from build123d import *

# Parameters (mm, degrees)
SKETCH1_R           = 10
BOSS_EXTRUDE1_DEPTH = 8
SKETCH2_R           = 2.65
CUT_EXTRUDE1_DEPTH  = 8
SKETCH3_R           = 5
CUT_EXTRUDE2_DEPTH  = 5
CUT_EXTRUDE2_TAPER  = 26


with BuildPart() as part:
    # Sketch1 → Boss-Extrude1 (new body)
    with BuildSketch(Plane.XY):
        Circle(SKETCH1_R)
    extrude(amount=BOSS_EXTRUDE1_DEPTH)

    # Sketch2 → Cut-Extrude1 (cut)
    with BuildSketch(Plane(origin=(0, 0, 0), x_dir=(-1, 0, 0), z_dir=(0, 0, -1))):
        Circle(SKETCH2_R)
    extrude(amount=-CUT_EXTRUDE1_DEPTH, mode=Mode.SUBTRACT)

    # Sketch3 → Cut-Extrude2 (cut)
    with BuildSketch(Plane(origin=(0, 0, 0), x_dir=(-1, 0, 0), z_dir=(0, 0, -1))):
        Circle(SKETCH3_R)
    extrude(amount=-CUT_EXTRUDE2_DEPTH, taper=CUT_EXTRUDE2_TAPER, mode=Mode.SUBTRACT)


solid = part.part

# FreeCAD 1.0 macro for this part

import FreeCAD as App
import Part
import Sketcher
from FreeCAD import Vector
Q = App.Units.Quantity

doc = App.newDocument("Part")
body = doc.addObject("PartDesign::Body", "Body")

# Sketch on XY plane
sketch1 = doc.addObject("Sketcher::SketchObject", "Sketch")
body.addObject(sketch1)
sketch1.AttachmentSupport = (doc.XY_Plane, [""])
sketch1.MapMode = "FlatFace"
sketch1.addGeometry(Part.Circle(Vector(0, 0, 0), Vector(0, 0, 1), 10), False)
sketch1.addConstraint([
    Sketcher.Constraint("Coincident", 0, 3, -1, 1),
    Sketcher.Constraint("Diameter", 0, Q("20 mm")),
])
pad1 = doc.addObject("PartDesign::Pad", "Pad")
body.addObject(pad1)
pad1.Profile = sketch1
pad1.Length = 8

# Sketch on XY plane
sketch2 = doc.addObject("Sketcher::SketchObject", "Sketch001")
body.addObject(sketch2)
sketch2.AttachmentSupport = (doc.XY_Plane, [""])
sketch2.MapMode = "FlatFace"
sketch2.addGeometry(Part.Circle(Vector(0, 0, 0), Vector(0, 0, 1), 2.6), False)
sketch2.addConstraint([
    Sketcher.Constraint("Coincident", 0, 3, -1, 1),
    Sketcher.Constraint("Diameter", 0, Q("5.3 mm")),
])
pocket1 = doc.addObject("PartDesign::Pocket", "Pocket")
body.addObject(pocket1)
pocket1.Profile = sketch2
pocket1.Length = 8
pocket1.Reversed = True

# Sketch on XY plane
sketch3 = doc.addObject("Sketcher::SketchObject", "Sketch002")
body.addObject(sketch3)
sketch3.AttachmentSupport = (doc.XY_Plane, [""])
sketch3.MapMode = "FlatFace"
sketch3.addGeometry(Part.Circle(Vector(0, 0, 0), Vector(0, 0, 1), 5), False)
sketch3.addConstraint([
    Sketcher.Constraint("Coincident", 0, 3, -1, 1),
    Sketcher.Constraint("Diameter", 0, Q("10 mm")),
])
pocket2 = doc.addObject("PartDesign::Pocket", "Pocket001")
body.addObject(pocket2)
pocket2.Profile = sketch3
pocket2.Length = 5
pocket2.Reversed = True
pocket2.TaperAngle = -26

doc.recompute()
